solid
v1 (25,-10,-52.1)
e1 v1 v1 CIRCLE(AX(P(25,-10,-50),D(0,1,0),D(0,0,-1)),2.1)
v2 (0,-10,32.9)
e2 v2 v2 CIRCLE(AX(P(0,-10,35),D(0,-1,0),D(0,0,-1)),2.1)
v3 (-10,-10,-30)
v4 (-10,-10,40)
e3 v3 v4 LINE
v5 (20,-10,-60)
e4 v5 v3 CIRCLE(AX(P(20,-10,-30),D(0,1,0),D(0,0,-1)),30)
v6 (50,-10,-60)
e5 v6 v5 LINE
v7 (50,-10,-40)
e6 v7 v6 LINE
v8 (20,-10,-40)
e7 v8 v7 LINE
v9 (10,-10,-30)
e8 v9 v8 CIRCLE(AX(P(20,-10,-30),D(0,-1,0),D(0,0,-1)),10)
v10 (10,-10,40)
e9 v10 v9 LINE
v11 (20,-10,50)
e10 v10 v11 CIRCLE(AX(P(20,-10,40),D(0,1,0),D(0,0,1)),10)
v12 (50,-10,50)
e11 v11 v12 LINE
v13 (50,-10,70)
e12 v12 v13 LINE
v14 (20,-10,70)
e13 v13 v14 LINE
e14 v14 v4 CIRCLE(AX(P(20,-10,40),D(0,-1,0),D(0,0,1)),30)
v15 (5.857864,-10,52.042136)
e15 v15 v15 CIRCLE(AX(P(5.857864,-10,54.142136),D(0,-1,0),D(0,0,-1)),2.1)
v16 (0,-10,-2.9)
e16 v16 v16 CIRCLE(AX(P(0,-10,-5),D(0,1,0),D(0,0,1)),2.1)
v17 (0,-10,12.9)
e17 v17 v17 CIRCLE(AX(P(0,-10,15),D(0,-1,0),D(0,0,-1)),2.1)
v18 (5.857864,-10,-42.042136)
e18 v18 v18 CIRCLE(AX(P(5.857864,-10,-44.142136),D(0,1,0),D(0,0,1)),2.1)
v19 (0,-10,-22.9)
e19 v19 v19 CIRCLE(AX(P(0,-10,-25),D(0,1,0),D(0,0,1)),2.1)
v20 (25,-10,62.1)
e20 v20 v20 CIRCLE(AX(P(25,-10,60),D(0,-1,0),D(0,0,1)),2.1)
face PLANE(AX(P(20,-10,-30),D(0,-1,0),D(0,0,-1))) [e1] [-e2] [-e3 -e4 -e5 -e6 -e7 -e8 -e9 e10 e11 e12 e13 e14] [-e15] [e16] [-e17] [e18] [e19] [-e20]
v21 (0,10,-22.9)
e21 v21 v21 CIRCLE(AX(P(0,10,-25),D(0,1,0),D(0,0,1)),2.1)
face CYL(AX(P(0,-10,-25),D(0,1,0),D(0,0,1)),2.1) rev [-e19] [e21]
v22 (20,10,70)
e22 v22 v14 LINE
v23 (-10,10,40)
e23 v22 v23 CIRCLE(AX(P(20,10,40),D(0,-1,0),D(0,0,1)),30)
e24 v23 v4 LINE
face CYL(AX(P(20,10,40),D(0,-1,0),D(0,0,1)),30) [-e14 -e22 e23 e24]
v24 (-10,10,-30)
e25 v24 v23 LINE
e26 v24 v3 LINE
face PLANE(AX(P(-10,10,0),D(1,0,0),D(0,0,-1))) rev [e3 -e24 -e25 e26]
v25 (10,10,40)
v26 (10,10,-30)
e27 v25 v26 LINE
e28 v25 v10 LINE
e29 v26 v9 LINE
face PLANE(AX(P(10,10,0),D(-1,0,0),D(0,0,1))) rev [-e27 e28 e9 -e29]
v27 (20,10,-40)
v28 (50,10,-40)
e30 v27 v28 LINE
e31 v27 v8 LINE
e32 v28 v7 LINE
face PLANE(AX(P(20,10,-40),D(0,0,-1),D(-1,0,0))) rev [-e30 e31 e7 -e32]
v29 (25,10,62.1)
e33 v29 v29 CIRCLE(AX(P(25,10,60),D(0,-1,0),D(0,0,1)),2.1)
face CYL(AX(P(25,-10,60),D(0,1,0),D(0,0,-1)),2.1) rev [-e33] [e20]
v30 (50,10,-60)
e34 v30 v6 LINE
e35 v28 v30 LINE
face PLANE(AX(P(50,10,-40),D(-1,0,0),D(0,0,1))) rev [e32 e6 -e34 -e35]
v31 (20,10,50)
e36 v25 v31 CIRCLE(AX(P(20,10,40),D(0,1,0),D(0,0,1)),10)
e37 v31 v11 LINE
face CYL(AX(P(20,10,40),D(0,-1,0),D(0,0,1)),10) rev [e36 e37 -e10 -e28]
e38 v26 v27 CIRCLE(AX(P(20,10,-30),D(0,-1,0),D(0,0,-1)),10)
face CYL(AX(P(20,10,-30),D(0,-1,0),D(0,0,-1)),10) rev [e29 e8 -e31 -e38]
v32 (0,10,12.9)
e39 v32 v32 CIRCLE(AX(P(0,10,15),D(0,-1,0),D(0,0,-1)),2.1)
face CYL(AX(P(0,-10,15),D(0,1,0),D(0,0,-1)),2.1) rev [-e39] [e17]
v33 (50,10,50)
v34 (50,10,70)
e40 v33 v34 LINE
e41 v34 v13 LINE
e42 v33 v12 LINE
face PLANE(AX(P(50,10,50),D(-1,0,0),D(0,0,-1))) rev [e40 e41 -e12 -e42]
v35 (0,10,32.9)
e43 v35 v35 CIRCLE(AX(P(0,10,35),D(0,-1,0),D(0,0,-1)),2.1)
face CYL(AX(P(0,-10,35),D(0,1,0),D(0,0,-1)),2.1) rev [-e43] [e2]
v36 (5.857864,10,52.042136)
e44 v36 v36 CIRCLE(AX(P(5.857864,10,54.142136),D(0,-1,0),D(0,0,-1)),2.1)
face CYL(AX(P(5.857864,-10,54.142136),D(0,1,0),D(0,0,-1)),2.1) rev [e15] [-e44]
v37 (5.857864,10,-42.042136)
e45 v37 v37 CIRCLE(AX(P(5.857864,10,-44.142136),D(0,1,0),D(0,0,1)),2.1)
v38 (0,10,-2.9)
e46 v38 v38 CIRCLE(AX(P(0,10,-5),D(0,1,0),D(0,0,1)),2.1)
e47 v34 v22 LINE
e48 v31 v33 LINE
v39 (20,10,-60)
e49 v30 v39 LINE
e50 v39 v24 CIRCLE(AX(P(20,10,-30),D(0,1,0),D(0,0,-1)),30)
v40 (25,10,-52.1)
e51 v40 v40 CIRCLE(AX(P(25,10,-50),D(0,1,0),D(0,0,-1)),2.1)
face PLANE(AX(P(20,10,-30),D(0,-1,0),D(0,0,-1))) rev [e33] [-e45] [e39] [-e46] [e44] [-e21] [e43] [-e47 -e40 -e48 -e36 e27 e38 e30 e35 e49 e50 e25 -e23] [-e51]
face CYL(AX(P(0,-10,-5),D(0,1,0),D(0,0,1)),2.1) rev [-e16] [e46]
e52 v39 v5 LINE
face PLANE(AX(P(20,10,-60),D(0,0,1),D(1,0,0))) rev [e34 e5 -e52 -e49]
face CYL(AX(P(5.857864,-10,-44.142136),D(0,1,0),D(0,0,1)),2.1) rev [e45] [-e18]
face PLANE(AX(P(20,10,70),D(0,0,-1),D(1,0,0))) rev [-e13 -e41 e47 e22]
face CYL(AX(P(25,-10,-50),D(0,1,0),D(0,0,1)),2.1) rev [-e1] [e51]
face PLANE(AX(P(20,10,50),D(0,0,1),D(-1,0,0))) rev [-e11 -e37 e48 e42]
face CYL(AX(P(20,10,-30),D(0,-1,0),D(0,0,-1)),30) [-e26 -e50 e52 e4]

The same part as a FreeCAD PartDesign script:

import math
import FreeCAD as App
import Part
import Sketcher
Q = App.Units.Quantity

doc = App.newDocument("Part")
body = doc.addObject("PartDesign::Body", "Body")

# Sketch on XZ plane
sketch1 = body.newObject("Sketcher::SketchObject", "Sketch")
sketch1.AttachmentSupport = (doc.getObject("XZ_Plane"), [""])
sketch1.MapMode = "FlatFace"
sketch1.addGeometry([
    Part.LineSegment(App.Vector(10, 0, 0), App.Vector(10, -30, 0)),  # 0
    Part.ArcOfCircle(Part.Circle(App.Vector(20, -30, 0), App.Vector(0, 0, 1), 10), math.radians(180), math.radians(270)),  # 1
    Part.LineSegment(App.Vector(20, -40, 0), App.Vector(50, -40, 0)),  # 2
    Part.LineSegment(App.Vector(50, -40, 0), App.Vector(50, -60, 0)),  # 3
    Part.LineSegment(App.Vector(50, -60, 0), App.Vector(20, -60, 0)),  # 4
    Part.ArcOfCircle(Part.Circle(App.Vector(20, -30, 0), App.Vector(0, 0, 1), 30), math.radians(180), math.radians(270)),  # 5
    Part.LineSegment(App.Vector(-10, -30, 0), App.Vector(-10, 0, 0)),  # 6
    Part.LineSegment(App.Vector(-10, 0, 0), App.Vector(10, 0, 0)),  # 7
], False)
sketch1.addConstraint([
    Sketcher.Constraint("Tangent", 0, 2, 1, 1),
    Sketcher.Constraint("Tangent", 1, 2, 2, 1),
    Sketcher.Constraint("Coincident", 2, 2, 3, 1),
    Sketcher.Constraint("Coincident", 3, 2, 4, 1),
    Sketcher.Constraint("Tangent", 4, 2, 5, 2),
    Sketcher.Constraint("Tangent", 5, 1, 6, 1),
    Sketcher.Constraint("Coincident", 6, 2, 7, 1),
    Sketcher.Constraint("Coincident", 7, 2, 0, 1),
    Sketcher.Constraint("Vertical", 0),
    Sketcher.Constraint("Horizontal", 2),
    Sketcher.Constraint("Vertical", 3),
    Sketcher.Constraint("Horizontal", 4),
    Sketcher.Constraint("Vertical", 6),
    Sketcher.Constraint("Horizontal", 7),
    Sketcher.Constraint("Coincident", 5, 3, 1, 3),
    Sketcher.Constraint("Symmetric", 6, 2, 7, 2, -1, 1),
    Sketcher.Constraint("Equal", 4, 0),
    Sketcher.Constraint("Radius", 1, Q("10 mm")),
    Sketcher.Constraint("Radius", 5, Q("30 mm")),
    Sketcher.Constraint("DistanceX", 2, 1, 2, 2, Q("30 mm")),
])
pad1 = body.newObject("PartDesign::Pad", "Pad")
pad1.Profile = sketch1
pad1.Length = 20
pad1.Midplane = True

# Sketch on XZ plane
sketch2 = body.newObject("Sketcher::SketchObject", "Sketch001")
sketch2.AttachmentSupport = (doc.getObject("XZ_Plane"), [""])
sketch2.MapMode = "FlatFace"
sketch2.AttachmentOffset = App.Placement(App.Vector(0, 0, -10), App.Rotation())
sketch2.addGeometry([
    Part.LineSegment(App.Vector(-10, 0, 0), App.Vector(-10, 5, 0)),
    Part.LineSegment(App.Vector(-10, 5, 0), App.Vector(10, 5, 0)),
    Part.LineSegment(App.Vector(10, 5, 0), App.Vector(10, 0, 0)),
    Part.LineSegment(App.Vector(10, 0, 0), App.Vector(-10, 0, 0)),
], False)
sketch2.addConstraint([
    Sketcher.Constraint("Coincident", 0, 2, 1, 1),
    Sketcher.Constraint("Coincident", 1, 2, 2, 1),
    Sketcher.Constraint("Coincident", 2, 2, 3, 1),
    Sketcher.Constraint("Coincident", 3, 2, 0, 1),
    Sketcher.Constraint("Vertical", 0),
    Sketcher.Constraint("Horizontal", 1),
    Sketcher.Constraint("Vertical", 2),
    Sketcher.Constraint("Horizontal", 3),
    Sketcher.Constraint("Symmetric", 2, 2, 3, 2, -1, 1),
    Sketcher.Constraint("DistanceX", 1, 1, 1, 2, Q("20 mm")),
    Sketcher.Constraint("DistanceY", 0, 1, 0, 2, Q("5 mm")),
])
pad2 = body.newObject("PartDesign::Pad", "Pad001")
pad2.Profile = sketch2
pad2.Length = 20

# Sketch on XZ plane
sketch3 = body.newObject("Sketcher::SketchObject", "Sketch002")
sketch3.AttachmentSupport = (doc.getObject("XZ_Plane"), [""])
sketch3.MapMode = "FlatFace"
sketch3.AttachmentOffset = App.Placement(App.Vector(0, 0, -10), App.Rotation())
sketch3.addGeometry([
    Part.Circle(App.Vector(5.857864, -44.142136, 0), App.Vector(0, 0, 1), 2.1),
    Part.Circle(App.Vector(0, -25, 0), App.Vector(0, 0, 1), 2.1),
    Part.Circle(App.Vector(25, -50, 0), App.Vector(0, 0, 1), 2.1),
    Part.Circle(App.Vector(0, -5, 0), App.Vector(0, 0, 1), 2.1),
], False)
sketch3.addConstraint([
    Sketcher.Constraint("Equal", 0, 1),
    Sketcher.Constraint("Equal", 1, 2),
    Sketcher.Constraint("Equal", 2, 3),
    Sketcher.Constraint("PointOnObject", 1, 3, -2),
    Sketcher.Constraint("PointOnObject", 3, 3, -2),
    Sketcher.Constraint("Diameter", 0, Q("4.2 mm")),
    Sketcher.Constraint("DistanceY", 1, 3, -1, 1, Q("25 mm")),
    Sketcher.Constraint("DistanceX", -1, 1, 2, 3, Q("25 mm")),
    Sketcher.Constraint("DistanceY", 2, 3, -1, 1, Q("50 mm")),
    Sketcher.Constraint("DistanceY", 3, 3, -1, 1, Q("5 mm")),
    Sketcher.Constraint("DistanceX", -1, 1, 0, 3, Q("5.857864 mm")),
    Sketcher.Constraint("DistanceY", 0, 3, -1, 1, Q("44.142136 mm")),
])
pocket1 = body.newObject("PartDesign::Pocket", "Pocket")
pocket1.Profile = sketch3
pocket1.Type = "ThroughAll"
pocket1.Reversed = True
body2 = doc.addObject("PartDesign::Body", "Body001")
doc.recompute()

body2.BaseFeature = body
doc.recompute()

mirroring = doc.addObject("Part::Mirroring", "Mirroring")
mirroring.Source = body
mirroring.Base = App.Vector(10, -30.615528, 5)
mirroring.Normal = App.Vector(0, 0, 1)
body3 = doc.addObject("PartDesign::Body", "Body002")
body3.BaseFeature = mirroring
boolean = body2.newObject("PartDesign::Boolean", "Boolean")
boolean.Type = "Fuse"
boolean.addObjects([body3])
doc.recompute()
mirroring.Visibility = False

doc.recompute()
